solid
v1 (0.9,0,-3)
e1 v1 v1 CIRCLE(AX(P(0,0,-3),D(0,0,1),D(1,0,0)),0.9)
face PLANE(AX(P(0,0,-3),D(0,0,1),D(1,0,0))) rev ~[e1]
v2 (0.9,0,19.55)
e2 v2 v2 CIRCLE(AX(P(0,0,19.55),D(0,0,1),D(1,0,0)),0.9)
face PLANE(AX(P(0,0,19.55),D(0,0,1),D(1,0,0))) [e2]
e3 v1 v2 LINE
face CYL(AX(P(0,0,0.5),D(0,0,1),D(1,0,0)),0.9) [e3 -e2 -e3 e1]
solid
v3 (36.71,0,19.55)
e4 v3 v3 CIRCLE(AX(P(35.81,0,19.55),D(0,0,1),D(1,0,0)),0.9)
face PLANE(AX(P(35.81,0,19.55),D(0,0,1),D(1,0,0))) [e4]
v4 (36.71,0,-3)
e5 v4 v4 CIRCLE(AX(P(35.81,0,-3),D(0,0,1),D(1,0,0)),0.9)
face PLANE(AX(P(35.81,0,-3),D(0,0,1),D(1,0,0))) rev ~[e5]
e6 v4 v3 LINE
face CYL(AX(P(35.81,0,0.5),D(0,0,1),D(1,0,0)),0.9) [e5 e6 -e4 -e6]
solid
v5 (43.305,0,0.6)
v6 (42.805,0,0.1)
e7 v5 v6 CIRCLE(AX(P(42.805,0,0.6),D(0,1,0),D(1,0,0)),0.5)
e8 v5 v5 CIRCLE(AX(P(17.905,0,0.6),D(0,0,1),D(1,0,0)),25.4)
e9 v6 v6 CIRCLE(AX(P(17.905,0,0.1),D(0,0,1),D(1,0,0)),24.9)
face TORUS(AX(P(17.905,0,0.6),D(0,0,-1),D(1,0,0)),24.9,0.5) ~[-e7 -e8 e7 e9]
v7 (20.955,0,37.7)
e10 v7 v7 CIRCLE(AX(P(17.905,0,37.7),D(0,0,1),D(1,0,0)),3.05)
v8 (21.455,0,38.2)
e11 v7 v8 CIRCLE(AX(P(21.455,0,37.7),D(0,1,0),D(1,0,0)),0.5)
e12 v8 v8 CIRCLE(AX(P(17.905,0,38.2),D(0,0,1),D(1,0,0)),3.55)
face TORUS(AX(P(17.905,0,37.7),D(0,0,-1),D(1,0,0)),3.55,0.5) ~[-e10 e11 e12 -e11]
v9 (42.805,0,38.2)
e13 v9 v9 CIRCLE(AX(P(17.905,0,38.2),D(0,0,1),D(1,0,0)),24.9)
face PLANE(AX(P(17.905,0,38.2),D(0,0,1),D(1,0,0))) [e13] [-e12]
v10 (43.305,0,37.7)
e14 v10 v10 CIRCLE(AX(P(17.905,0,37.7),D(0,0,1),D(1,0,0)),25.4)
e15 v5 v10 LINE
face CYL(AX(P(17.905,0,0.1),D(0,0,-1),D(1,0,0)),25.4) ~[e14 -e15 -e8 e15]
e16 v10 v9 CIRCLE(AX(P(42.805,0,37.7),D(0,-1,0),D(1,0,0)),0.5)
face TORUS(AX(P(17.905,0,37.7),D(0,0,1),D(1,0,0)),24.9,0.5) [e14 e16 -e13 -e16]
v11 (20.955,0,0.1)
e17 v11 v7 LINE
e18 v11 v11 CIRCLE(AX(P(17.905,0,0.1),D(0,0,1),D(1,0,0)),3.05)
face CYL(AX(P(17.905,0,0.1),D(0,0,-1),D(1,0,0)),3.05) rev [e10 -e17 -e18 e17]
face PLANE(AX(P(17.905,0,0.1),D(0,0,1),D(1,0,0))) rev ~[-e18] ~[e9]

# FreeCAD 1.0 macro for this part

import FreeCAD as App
import Part
import Sketcher

V = App.Vector


def edges_at(feature, points):
    """Names of the edges that pass closest to the given points."""
    edges = feature.Shape.Edges
    near = lambda p: min(range(len(edges)), key=lambda i: edges[i].distToShape(Part.Vertex(*p))[0])
    return sorted({f"Edge{near(p) + 1}" for p in points})

doc = App.newDocument("Part")
body = doc.addObject("PartDesign::Body", "Body")
body.AllowCompound = True

# Sketch on XY plane
sketch1 = doc.addObject("Sketcher::SketchObject", "Sketch")
body.addObject(sketch1)
sketch1.AttachmentSupport = (doc.XY_Plane, [""])
sketch1.MapMode = "FlatFace"
sketch1.AttachmentOffset = App.Placement(V(0, 0, 0.5), App.Rotation())
sketch1.addGeometry(Part.Circle(V(0, 0, 0), V(0, 0, 1), 0.9), False)
sketch1.addGeometry(Part.Circle(V(35.8, 0, 0), V(0, 0, 1), 0.9), False)
sketch1.addConstraint(Sketcher.Constraint("Coincident", 0, 3, -1, 1))
sketch1.addConstraint(Sketcher.Constraint("Equal", 0, 1))
sketch1.addConstraint(Sketcher.Constraint("PointOnObject", 1, 3, -1))
sketch1.addConstraint(Sketcher.Constraint("Diameter", 0, 1.8))
sketch1.addConstraint(Sketcher.Constraint("DistanceX", -1, 1, 1, 3, 35.81))
pad1 = doc.addObject("PartDesign::Pad", "Pad")
body.addObject(pad1)
pad1.Profile = sketch1
pad1.Type = "TwoLengths"
pad1.Length = 19.05
pad1.Length2 = 3.5
body2 = doc.addObject("PartDesign::Body", "Body001")

# Sketch on XY plane
sketch2 = doc.addObject("Sketcher::SketchObject", "Sketch001")
body2.addObject(sketch2)
sketch2.AttachmentSupport = (doc.getObject("XY_Plane001"), [""])
sketch2.MapMode = "FlatFace"
sketch2.AttachmentOffset = App.Placement(V(0, 0, 0.1), App.Rotation())
sketch2.addGeometry(Part.Circle(V(17.9, 0, 0), V(0, 0, 1), 25.4), False)
sketch2.addGeometry(Part.Circle(V(17.9, 0, 0), V(0, 0, 1), 3), False)
sketch2.addConstraint(Sketcher.Constraint("Coincident", 1, 3, 0, 3))
sketch2.addConstraint(Sketcher.Constraint("PointOnObject", 0, 3, -1))
sketch2.addConstraint(Sketcher.Constraint("Diameter", 0, 50.8))
sketch2.addConstraint(Sketcher.Constraint("Diameter", 1, 6.1))
sketch2.addConstraint(Sketcher.Constraint("DistanceX", -1, 1, 0, 3, 17.905))
pad2 = doc.addObject("PartDesign::Pad", "Pad001")
body2.addObject(pad2)
pad2.Profile = sketch2
pad2.Length = 38.1
doc.recompute()

fillet = doc.addObject("PartDesign::Fillet", "Fillet")
body2.addObject(fillet)
fillet.Base = (pad2, edges_at(pad2, [(14.855, 0, 38.2), (-7.495, 0, 38.2), (-7.495, 0, 0.1)]))
fillet.Radius = 0.5

doc.recompute()
